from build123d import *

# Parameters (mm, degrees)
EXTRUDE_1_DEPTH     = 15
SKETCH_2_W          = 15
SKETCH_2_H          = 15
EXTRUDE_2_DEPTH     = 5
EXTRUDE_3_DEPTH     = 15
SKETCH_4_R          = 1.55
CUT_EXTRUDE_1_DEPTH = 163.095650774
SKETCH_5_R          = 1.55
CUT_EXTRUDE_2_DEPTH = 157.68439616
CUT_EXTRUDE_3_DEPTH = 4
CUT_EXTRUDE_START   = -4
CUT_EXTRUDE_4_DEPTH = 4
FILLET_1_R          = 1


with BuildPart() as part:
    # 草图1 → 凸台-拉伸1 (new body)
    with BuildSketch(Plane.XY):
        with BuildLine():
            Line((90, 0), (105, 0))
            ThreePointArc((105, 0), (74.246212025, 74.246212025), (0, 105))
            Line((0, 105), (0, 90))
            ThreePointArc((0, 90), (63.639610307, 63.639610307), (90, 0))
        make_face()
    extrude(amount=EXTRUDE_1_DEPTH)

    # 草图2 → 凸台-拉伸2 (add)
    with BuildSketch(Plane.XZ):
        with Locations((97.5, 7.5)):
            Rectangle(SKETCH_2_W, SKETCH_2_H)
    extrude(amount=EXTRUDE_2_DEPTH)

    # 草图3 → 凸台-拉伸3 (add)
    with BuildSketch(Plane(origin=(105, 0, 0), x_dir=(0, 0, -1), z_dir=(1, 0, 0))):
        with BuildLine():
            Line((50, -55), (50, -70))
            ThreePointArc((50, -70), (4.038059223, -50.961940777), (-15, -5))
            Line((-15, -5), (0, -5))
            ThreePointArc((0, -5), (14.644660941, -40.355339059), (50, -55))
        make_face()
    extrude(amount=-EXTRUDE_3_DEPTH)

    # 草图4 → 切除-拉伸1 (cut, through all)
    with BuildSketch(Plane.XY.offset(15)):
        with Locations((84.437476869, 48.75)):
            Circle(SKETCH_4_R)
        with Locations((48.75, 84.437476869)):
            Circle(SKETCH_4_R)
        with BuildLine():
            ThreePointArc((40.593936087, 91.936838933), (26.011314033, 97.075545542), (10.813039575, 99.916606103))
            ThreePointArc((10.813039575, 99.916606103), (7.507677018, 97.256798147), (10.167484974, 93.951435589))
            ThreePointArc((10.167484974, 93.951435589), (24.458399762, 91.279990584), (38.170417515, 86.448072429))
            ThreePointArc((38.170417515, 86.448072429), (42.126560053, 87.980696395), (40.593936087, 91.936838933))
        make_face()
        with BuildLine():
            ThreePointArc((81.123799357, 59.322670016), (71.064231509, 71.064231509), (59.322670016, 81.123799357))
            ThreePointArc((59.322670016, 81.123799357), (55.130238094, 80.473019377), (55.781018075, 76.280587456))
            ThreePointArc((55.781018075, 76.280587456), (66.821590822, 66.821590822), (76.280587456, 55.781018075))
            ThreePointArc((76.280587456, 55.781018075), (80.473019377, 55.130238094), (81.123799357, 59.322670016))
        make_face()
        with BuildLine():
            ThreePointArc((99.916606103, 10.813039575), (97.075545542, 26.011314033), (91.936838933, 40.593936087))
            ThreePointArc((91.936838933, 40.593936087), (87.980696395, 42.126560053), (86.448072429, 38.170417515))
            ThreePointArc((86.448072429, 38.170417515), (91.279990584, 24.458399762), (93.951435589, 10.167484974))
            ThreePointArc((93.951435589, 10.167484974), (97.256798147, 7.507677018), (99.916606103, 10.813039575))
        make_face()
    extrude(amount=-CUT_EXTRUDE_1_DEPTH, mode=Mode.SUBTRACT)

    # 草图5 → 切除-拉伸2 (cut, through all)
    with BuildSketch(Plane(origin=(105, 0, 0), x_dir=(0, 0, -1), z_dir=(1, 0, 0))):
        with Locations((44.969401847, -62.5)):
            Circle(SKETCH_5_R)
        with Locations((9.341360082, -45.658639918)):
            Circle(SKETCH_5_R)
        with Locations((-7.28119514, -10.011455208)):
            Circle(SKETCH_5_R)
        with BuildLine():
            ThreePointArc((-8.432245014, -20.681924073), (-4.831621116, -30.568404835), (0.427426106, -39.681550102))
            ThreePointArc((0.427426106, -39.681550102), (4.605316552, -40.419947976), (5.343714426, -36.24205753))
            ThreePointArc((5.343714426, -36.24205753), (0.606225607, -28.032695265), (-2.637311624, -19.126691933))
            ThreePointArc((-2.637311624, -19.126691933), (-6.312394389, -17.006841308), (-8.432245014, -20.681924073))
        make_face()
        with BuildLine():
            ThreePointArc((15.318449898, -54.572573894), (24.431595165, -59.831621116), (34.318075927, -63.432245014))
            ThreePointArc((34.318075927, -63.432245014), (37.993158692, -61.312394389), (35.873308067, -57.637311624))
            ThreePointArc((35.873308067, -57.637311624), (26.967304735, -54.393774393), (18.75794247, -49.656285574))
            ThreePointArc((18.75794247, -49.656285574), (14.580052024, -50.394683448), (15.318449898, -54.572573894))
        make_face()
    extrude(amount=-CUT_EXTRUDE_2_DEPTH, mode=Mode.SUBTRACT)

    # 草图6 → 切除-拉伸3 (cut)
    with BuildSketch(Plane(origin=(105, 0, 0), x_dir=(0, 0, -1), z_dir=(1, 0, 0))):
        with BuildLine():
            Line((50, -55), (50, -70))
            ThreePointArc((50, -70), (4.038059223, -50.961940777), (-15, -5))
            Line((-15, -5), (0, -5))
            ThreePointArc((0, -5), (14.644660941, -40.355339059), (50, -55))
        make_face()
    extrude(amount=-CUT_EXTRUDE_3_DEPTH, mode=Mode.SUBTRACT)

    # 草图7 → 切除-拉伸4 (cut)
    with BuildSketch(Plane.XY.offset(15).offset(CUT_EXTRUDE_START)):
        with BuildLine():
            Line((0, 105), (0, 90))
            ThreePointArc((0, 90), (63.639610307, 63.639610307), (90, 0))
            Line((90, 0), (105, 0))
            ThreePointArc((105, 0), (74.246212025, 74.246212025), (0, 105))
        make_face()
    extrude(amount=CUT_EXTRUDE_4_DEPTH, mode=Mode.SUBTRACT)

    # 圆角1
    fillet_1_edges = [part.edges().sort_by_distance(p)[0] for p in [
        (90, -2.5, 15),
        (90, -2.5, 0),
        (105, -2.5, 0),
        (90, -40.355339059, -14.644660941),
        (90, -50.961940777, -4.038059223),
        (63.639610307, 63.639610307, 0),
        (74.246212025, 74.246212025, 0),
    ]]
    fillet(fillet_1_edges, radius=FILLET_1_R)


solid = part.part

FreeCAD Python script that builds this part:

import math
import FreeCAD as App
import Part
import Sketcher
from FreeCAD import Vector


def edges_at(feature, points):
    """Names of the edges that pass closest to the given points."""
    edges = feature.Shape.Edges
    near = lambda p: min(range(len(edges)), key=lambda i: edges[i].distToShape(Part.Vertex(*p))[0])
    return sorted({f"Edge{near(p) + 1}" for p in points})

doc = App.newDocument("Part")
body = doc.addObject("PartDesign::Body", "Body")

# Sketch on XY plane
sketch1 = doc.addObject("Sketcher::SketchObject", "Sketch")
body.addObject(sketch1)
sketch1.AttachmentSupport = (doc.XY_Plane, [""])
sketch1.MapMode = "FlatFace"
sketch1.addGeometry([
    Part.LineSegment(Vector(90, 0, 0), Vector(105, 0, 0)),
    Part.ArcOfCircle(Part.Circle(Vector(0, 0, 0), Vector(0, 0, 1), 105), math.radians(0), math.radians(90)),
    Part.LineSegment(Vector(0, 105, 0), Vector(0, 90, 0)),
    Part.ArcOfCircle(Part.Circle(Vector(0, 0, 0), Vector(0, 0, 1), 90), math.radians(0), math.radians(90)),
], False)
sketch1.addConstraint([
    Sketcher.Constraint("Coincident", 0, 2, 1, 1),
    Sketcher.Constraint("Coincident", 1, 2, 2, 1),
    Sketcher.Constraint("Coincident", 2, 2, 3, 2),
    Sketcher.Constraint("Coincident", 3, 1, 0, 1),
    Sketcher.Constraint("Horizontal", 0),
    Sketcher.Constraint("Vertical", 2),
    Sketcher.Constraint("Coincident", 1, 3, -1, 1),
    Sketcher.Constraint("Coincident", 3, 3, -1, 1),
    Sketcher.Constraint("PointOnObject", 0, 2, -1),
    Sketcher.Constraint("PointOnObject", 1, 2, -2),
    Sketcher.Constraint("Radius", 1, 105.0),
    Sketcher.Constraint("Radius", 3, 90.0),
])
pad1 = doc.addObject("PartDesign::Pad", "Pad")
body.addObject(pad1)
pad1.Profile = sketch1
pad1.Length = 15

# Sketch on XZ plane
sketch2 = doc.addObject("Sketcher::SketchObject", "Sketch001")
body.addObject(sketch2)
sketch2.AttachmentSupport = (doc.XZ_Plane, [""])
sketch2.MapMode = "FlatFace"
sketch2.addGeometry([
    Part.LineSegment(Vector(90, 15, 0), Vector(90, 0, 0)),
    Part.LineSegment(Vector(90, 0, 0), Vector(105, 0, 0)),
    Part.LineSegment(Vector(105, 0, 0), Vector(105, 15, 0)),
    Part.LineSegment(Vector(105, 15, 0), Vector(90, 15, 0)),
], False)
sketch2.addConstraint([
    Sketcher.Constraint("Coincident", 0, 2, 1, 1),
    Sketcher.Constraint("Coincident", 1, 2, 2, 1),
    Sketcher.Constraint("Coincident", 2, 2, 3, 1),
    Sketcher.Constraint("Coincident", 3, 2, 0, 1),
    Sketcher.Constraint("Vertical", 0),
    Sketcher.Constraint("Horizontal", 1),
    Sketcher.Constraint("Vertical", 2),
    Sketcher.Constraint("Horizontal", 3),
    Sketcher.Constraint("PointOnObject", 0, 2, -1),
    Sketcher.Constraint("Equal", 3, 0),
    Sketcher.Constraint("DistanceX", 1, 1, 1, 2, 15.0),
    Sketcher.Constraint("DistanceX", -1, 1, 0, 2, 90.0),
])
pad2 = doc.addObject("PartDesign::Pad", "Pad001")
body.addObject(pad2)
pad2.Profile = sketch2
pad2.Length = 5

# Sketch on YZ plane
sketch3 = doc.addObject("Sketcher::SketchObject", "Sketch002")
body.addObject(sketch3)
sketch3.AttachmentSupport = (doc.YZ_Plane, [""])
sketch3.MapMode = "FlatFace"
sketch3.AttachmentOffset = App.Placement(Vector(0, 0, 105), App.Rotation())
sketch3.addGeometry([
    Part.LineSegment(Vector(-70, -50, 0), Vector(-55, -50, 0)),
    Part.ArcOfCircle(Part.Circle(Vector(-5, -50, 0), Vector(0, 0, 1), 50), math.radians(90), math.radians(180)),
    Part.LineSegment(Vector(-5, 0, 0), Vector(-5, 15, 0)),
    Part.ArcOfCircle(Part.Circle(Vector(-5, -50, 0), Vector(0, 0, 1), 65), math.radians(90), math.radians(180)),
], False)
sketch3.addConstraint([
    Sketcher.Constraint("Coincident", 0, 2, 1, 2),
    Sketcher.Constraint("Coincident", 1, 1, 2, 1),
    Sketcher.Constraint("Coincident", 2, 2, 3, 1),
    Sketcher.Constraint("Coincident", 3, 2, 0, 1),
    Sketcher.Constraint("Horizontal", 0),
    Sketcher.Constraint("Vertical", 2),
    Sketcher.Constraint("Coincident", 3, 3, 1, 3),
    Sketcher.Constraint("PointOnObject", 1, 1, -1),
    Sketcher.Constraint("Horizontal", 3, 3, 0, 2),
    Sketcher.Constraint("Vertical", 3, 3, 1, 1),
    Sketcher.Constraint("Radius", 1, 50.0),
    Sketcher.Constraint("Radius", 3, 65.0),
    Sketcher.Constraint("DistanceX", 1, 3, -1, 1, 5.0),
])
pad3 = doc.addObject("PartDesign::Pad", "Pad002")
body.addObject(pad3)
pad3.Profile = sketch3
pad3.Length = 15
pad3.Reversed = True

# Sketch on XY plane
sketch4 = doc.addObject("Sketcher::SketchObject", "Sketch003")
body.addObject(sketch4)
sketch4.AttachmentSupport = (doc.XY_Plane, [""])
sketch4.MapMode = "FlatFace"
sketch4.AttachmentOffset = App.Placement(Vector(0, 0, 15), App.Rotation())
sketch4.addGeometry([
    Part.Circle(Vector(84.4, 48.8, 0), Vector(0, 0, 1), 1.6),  # 0
    Part.Circle(Vector(48.8, 84.4, 0), Vector(0, 0, 1), 1.6),  # 1
    Part.ArcOfCircle(Part.Circle(Vector(0, 0, 0), Vector(0, 0, 1), 100.5), math.radians(66.18), math.radians(83.82)),  # 2
    Part.ArcOfCircle(Part.Circle(Vector(10.5, 96.9, 0), Vector(0, 0, 1), 3), math.radians(84), math.radians(264)),  # 3
    Part.ArcOfCircle(Part.Circle(Vector(0, 0, 0), Vector(0, 0, 1), 94.5), math.radians(66.18), math.radians(83.82)),  # 4
    Part.ArcOfCircle(Part.Circle(Vector(39.4, 89.2, 0), Vector(0, 0, 1), 3), math.radians(-114), math.radians(66)),  # 5
    Part.ArcOfCircle(Part.Circle(Vector(0, 0, 0), Vector(0, 0, 1), 100.5), math.radians(36.18), math.radians(53.82)),  # 6
    Part.ArcOfCircle(Part.Circle(Vector(57.6, 78.7, 0), Vector(0, 0, 1), 3), math.radians(54), math.radians(234)),  # 7
    Part.ArcOfCircle(Part.Circle(Vector(0, 0, 0), Vector(0, 0, 1), 94.5), math.radians(36.18), math.radians(53.82)),  # 8
    Part.ArcOfCircle(Part.Circle(Vector(78.7, 57.6, 0), Vector(0, 0, 1), 3), math.radians(-144), math.radians(36)),  # 9
    Part.ArcOfCircle(Part.Circle(Vector(0, 0, 0), Vector(0, 0, 1), 100.5), math.radians(6.18), math.radians(23.82)),  # 10
    Part.ArcOfCircle(Part.Circle(Vector(89.2, 39.4, 0), Vector(0, 0, 1), 3), math.radians(24), math.radians(204)),  # 11
    Part.ArcOfCircle(Part.Circle(Vector(0, 0, 0), Vector(0, 0, 1), 94.5), math.radians(6.18), math.radians(23.82)),  # 12
    Part.ArcOfCircle(Part.Circle(Vector(96.9, 10.5, 0), Vector(0, 0, 1), 3), math.radians(-174), math.radians(6)),  # 13
], False)
sketch4.addConstraint([
    Sketcher.Constraint("Tangent", 2, 2, 3, 1),
    Sketcher.Constraint("Tangent", 3, 2, 4, 2),
    Sketcher.Constraint("Tangent", 4, 1, 5, 1),
    Sketcher.Constraint("Tangent", 5, 2, 2, 1),
    Sketcher.Constraint("Tangent", 6, 2, 7, 1),
    Sketcher.Constraint("Tangent", 7, 2, 8, 2),
    Sketcher.Constraint("Tangent", 8, 1, 9, 1),
    Sketcher.Constraint("Tangent", 9, 2, 6, 1),
    Sketcher.Constraint("Tangent", 10, 2, 11, 1),
    Sketcher.Constraint("Tangent", 11, 2, 12, 2),
    Sketcher.Constraint("Tangent", 12, 1, 13, 1),
    Sketcher.Constraint("Tangent", 13, 2, 10, 1),
    Sketcher.Constraint("Coincident", 2, 3, -1, 1),
    Sketcher.Constraint("Coincident", 4, 3, -1, 1),
    Sketcher.Constraint("Coincident", 6, 3, -1, 1),
    Sketcher.Constraint("Coincident", 8, 3, -1, 1),
    Sketcher.Constraint("Coincident", 10, 3, -1, 1),
    Sketcher.Constraint("Coincident", 12, 3, -1, 1),
    Sketcher.Constraint("Equal", 0, 1),
    Sketcher.Constraint("Equal", 2, 6),
    Sketcher.Constraint("Equal", 5, 7),
    Sketcher.Constraint("Equal", 6, 10),
    Sketcher.Constraint("Equal", 9, 11),
    Sketcher.Constraint("Radius", 3, 3.0),
    Sketcher.Constraint("Diameter", 0, 3.1),
    Sketcher.Constraint("Radius", 2, 100.5),
    Sketcher.Constraint("DistanceY", -1, 1, 0, 3, 48.75),
    Sketcher.Constraint("DistanceX", -1, 1, 1, 3, 48.75),
    Sketcher.Constraint("DistanceY", -1, 1, 6, 2, 81.123799),
    Sketcher.Constraint("DistanceX", -1, 1, 9, 2, 81.123799),
    Sketcher.Constraint("DistanceX", 5, 3, 0, 3, 45.0553),
    Sketcher.Constraint("DistanceY", 11, 3, 1, 3, 45.0553),
    Sketcher.Constraint("DistanceX", 4, 1, 7, 2, 17.610601),
    Sketcher.Constraint("DistanceY", 11, 2, 8, 1, 17.610601),
    Sketcher.Constraint("DistanceY", -1, 1, 3, 3, 96.934021),
    Sketcher.Constraint("DistanceX", -1, 1, 13, 3, 96.934021),
])
pocket1 = doc.addObject("PartDesign::Pocket", "Pocket")
body.addObject(pocket1)
pocket1.Profile = sketch4
pocket1.Type = "ThroughAll"

# Sketch on YZ plane
sketch5 = doc.addObject("Sketcher::SketchObject", "Sketch004")
body.addObject(sketch5)
sketch5.AttachmentSupport = (doc.YZ_Plane, [""])
sketch5.MapMode = "FlatFace"
sketch5.AttachmentOffset = App.Placement(Vector(0, 0, 105), App.Rotation())
sketch5.addGeometry([
    Part.Circle(Vector(-62.5, -45, 0), Vector(0, 0, 1), 1.6),  # 0
    Part.Circle(Vector(-45.7, -9.3, 0), Vector(0, 0, 1), 1.6),  # 1
    Part.Circle(Vector(-10, 7.3, 0), Vector(0, 0, 1), 1.6),  # 2
    Part.ArcOfCircle(Part.Circle(Vector(-5, -50, 0), Vector(0, 0, 1), 60.5), math.radians(105.02), math.radians(124.98)),  # 3
    Part.ArcOfCircle(Part.Circle(Vector(-38, -2.9, 0), Vector(0, 0, 1), 3), math.radians(125), math.radians(305)),  # 4
    Part.ArcOfCircle(Part.Circle(Vector(-5, -50, 0), Vector(0, 0, 1), 54.5), math.radians(105.02), math.radians(124.98)),  # 5
    Part.ArcOfCircle(Part.Circle(Vector(-19.9, 5.5, 0), Vector(0, 0, 1), 3), math.radians(-75), math.radians(105)),  # 6
    Part.ArcOfCircle(Part.Circle(Vector(-5, -50, 0), Vector(0, 0, 1), 60.5), math.radians(145.02), math.radians(164.98)),  # 7
    Part.ArcOfCircle(Part.Circle(Vector(-60.5, -35.1, 0), Vector(0, 0, 1), 3), math.radians(165), math.radians(345)),  # 8
    Part.ArcOfCircle(Part.Circle(Vector(-5, -50, 0), Vector(0, 0, 1), 54.5), math.radians(145.02), math.radians(164.98)),  # 9
    Part.ArcOfCircle(Part.Circle(Vector(-52.1, -17, 0), Vector(0, 0, 1), 3), math.radians(-35), math.radians(145)),  # 10
], False)
sketch5.addConstraint([
    Sketcher.Constraint("Tangent", 3, 2, 4, 1),
    Sketcher.Constraint("Tangent", 4, 2, 5, 2),
    Sketcher.Constraint("Tangent", 5, 1, 6, 1),
    Sketcher.Constraint("Tangent", 6, 2, 3, 1),
    Sketcher.Constraint("Tangent", 7, 2, 8, 1),
    Sketcher.Constraint("Tangent", 8, 2, 9, 2),
    Sketcher.Constraint("Tangent", 9, 1, 10, 1),
    Sketcher.Constraint("Tangent", 10, 2, 7, 1),
    Sketcher.Constraint("Coincident", 5, 3, 3, 3),
    Sketcher.Constraint("Coincident", 7, 3, 3, 3),
    Sketcher.Constraint("Coincident", 9, 3, 3, 3),
    Sketcher.Constraint("Equal", 0, 1),
    Sketcher.Constraint("Equal", 1, 2),
    Sketcher.Constraint("Equal", 3, 7),
    Sketcher.Constraint("Equal", 6, 8),
    Sketcher.Constraint("Radius", 4, 3.0),
    Sketcher.Constraint("Diameter", 0, 3.1),
    Sketcher.Constraint("Radius", 3, 60.5),
    Sketcher.Constraint("DistanceX", 3, 3, -1, 1, 5.0),
    Sketcher.Constraint("DistanceY", 3, 3, -1, 1, 50.0),
    Sketcher.Constraint("DistanceX", 0, 3, -1, 1, 62.5),
    Sketcher.Constraint("DistanceY", 0, 3, -1, 1, 44.969402),
    Sketcher.Constraint("DistanceX", 1, 3, -1, 1, 45.65864),
    Sketcher.Constraint("DistanceY", 1, 3, -1, 1, 9.34136),
    Sketcher.Constraint("DistanceY", 4, 3, -1, 1, 2.88557),
    Sketcher.Constraint("DistanceX", 6, 3, -1, 1, 19.904308),
    Sketcher.Constraint("DistanceX", 8, 3, -1, 1, 60.534778),
    Sketcher.Constraint("DistanceX", 10, 3, -1, 1, 52.11443),
    Sketcher.Constraint("DistanceX", 4, 3, 2, 3, 27.950349),
    Sketcher.Constraint("DistanceY", 3, 2, 2, 3, 7.708621),
])
pocket2 = doc.addObject("PartDesign::Pocket", "Pocket001")
body.addObject(pocket2)
pocket2.Profile = sketch5
pocket2.Type = "ThroughAll"

# Sketch on YZ plane
sketch6 = doc.addObject("Sketcher::SketchObject", "Sketch005")
body.addObject(sketch6)
sketch6.AttachmentSupport = (doc.YZ_Plane, [""])
sketch6.MapMode = "FlatFace"
sketch6.AttachmentOffset = App.Placement(Vector(0, 0, 105), App.Rotation())
sketch6.addGeometry([
    Part.LineSegment(Vector(-70, -50, 0), Vector(-55, -50, 0)),
    Part.ArcOfCircle(Part.Circle(Vector(-5, -50, 0), Vector(0, 0, 1), 50), math.radians(90), math.radians(180)),
    Part.LineSegment(Vector(-5, 0, 0), Vector(-5, 15, 0)),
    Part.ArcOfCircle(Part.Circle(Vector(-5, -50, 0), Vector(0, 0, 1), 65), math.radians(90), math.radians(180)),
], False)
sketch6.addConstraint([
    Sketcher.Constraint("Coincident", 0, 2, 1, 2),
    Sketcher.Constraint("Coincident", 1, 1, 2, 1),
    Sketcher.Constraint("Coincident", 2, 2, 3, 1),
    Sketcher.Constraint("Coincident", 3, 2, 0, 1),
    Sketcher.Constraint("Horizontal", 0),
    Sketcher.Constraint("Vertical", 2),
    Sketcher.Constraint("Coincident", 3, 3, 1, 3),
    Sketcher.Constraint("PointOnObject", 1, 1, -1),
    Sketcher.Constraint("Horizontal", 3, 3, 0, 2),
    Sketcher.Constraint("Vertical", 3, 3, 1, 1),
    Sketcher.Constraint("Radius", 1, 50.0),
    Sketcher.Constraint("Radius", 3, 65.0),
    Sketcher.Constraint("DistanceX", 1, 3, -1, 1, 5.0),
])
pocket3 = doc.addObject("PartDesign::Pocket", "Pocket002")
body.addObject(pocket3)
pocket3.Profile = sketch6
pocket3.Length = 4

# Sketch on XY plane
sketch7 = doc.addObject("Sketcher::SketchObject", "Sketch006")
body.addObject(sketch7)
sketch7.AttachmentSupport = (doc.XY_Plane, [""])
sketch7.MapMode = "FlatFace"
sketch7.AttachmentOffset = App.Placement(Vector(0, 0, 11), App.Rotation())
sketch7.addGeometry([
    Part.LineSegment(Vector(0, 105, 0), Vector(0, 90, 0)),
    Part.ArcOfCircle(Part.Circle(Vector(0, 0, 0), Vector(0, 0, 1), 90), math.radians(0), math.radians(90)),
    Part.LineSegment(Vector(90, 0, 0), Vector(105, 0, 0)),
    Part.ArcOfCircle(Part.Circle(Vector(0, 0, 0), Vector(0, 0, 1), 105), math.radians(0), math.radians(90)),
], False)
sketch7.addConstraint([
    Sketcher.Constraint("Coincident", 0, 2, 1, 2),
    Sketcher.Constraint("Coincident", 1, 1, 2, 1),
    Sketcher.Constraint("Coincident", 2, 2, 3, 1),
    Sketcher.Constraint("Coincident", 3, 2, 0, 1),
    Sketcher.Constraint("Vertical", 0),
    Sketcher.Constraint("Horizontal", 2),
    Sketcher.Constraint("Coincident", 1, 3, -1, 1),
    Sketcher.Constraint("Coincident", 3, 3, -1, 1),
    Sketcher.Constraint("PointOnObject", 0, 2, -2),
    Sketcher.Constraint("PointOnObject", 1, 1, -1),
    Sketcher.Constraint("Radius", 1, 90.0),
    Sketcher.Constraint("Radius", 3, 105.0),
])
pocket4 = doc.addObject("PartDesign::Pocket", "Pocket003")
body.addObject(pocket4)
pocket4.Profile = sketch7
pocket4.Length = 4
pocket4.Reversed = True
doc.recompute()

fillet = doc.addObject("PartDesign::Fillet", "Fillet")
body.addObject(fillet)
fillet.Base = (pocket4, edges_at(pocket4, [
    (90, -2.5, 15),
    (90, -2.5, 0),
    (105, -2.5, 0),
    (90, -40.355, -14.645),
    (90, -50.962, -4.038),
    (63.64, 63.64, 0),
    (74.246, 74.246, 0),
]))
fillet.Radius = 1

doc.recompute()
